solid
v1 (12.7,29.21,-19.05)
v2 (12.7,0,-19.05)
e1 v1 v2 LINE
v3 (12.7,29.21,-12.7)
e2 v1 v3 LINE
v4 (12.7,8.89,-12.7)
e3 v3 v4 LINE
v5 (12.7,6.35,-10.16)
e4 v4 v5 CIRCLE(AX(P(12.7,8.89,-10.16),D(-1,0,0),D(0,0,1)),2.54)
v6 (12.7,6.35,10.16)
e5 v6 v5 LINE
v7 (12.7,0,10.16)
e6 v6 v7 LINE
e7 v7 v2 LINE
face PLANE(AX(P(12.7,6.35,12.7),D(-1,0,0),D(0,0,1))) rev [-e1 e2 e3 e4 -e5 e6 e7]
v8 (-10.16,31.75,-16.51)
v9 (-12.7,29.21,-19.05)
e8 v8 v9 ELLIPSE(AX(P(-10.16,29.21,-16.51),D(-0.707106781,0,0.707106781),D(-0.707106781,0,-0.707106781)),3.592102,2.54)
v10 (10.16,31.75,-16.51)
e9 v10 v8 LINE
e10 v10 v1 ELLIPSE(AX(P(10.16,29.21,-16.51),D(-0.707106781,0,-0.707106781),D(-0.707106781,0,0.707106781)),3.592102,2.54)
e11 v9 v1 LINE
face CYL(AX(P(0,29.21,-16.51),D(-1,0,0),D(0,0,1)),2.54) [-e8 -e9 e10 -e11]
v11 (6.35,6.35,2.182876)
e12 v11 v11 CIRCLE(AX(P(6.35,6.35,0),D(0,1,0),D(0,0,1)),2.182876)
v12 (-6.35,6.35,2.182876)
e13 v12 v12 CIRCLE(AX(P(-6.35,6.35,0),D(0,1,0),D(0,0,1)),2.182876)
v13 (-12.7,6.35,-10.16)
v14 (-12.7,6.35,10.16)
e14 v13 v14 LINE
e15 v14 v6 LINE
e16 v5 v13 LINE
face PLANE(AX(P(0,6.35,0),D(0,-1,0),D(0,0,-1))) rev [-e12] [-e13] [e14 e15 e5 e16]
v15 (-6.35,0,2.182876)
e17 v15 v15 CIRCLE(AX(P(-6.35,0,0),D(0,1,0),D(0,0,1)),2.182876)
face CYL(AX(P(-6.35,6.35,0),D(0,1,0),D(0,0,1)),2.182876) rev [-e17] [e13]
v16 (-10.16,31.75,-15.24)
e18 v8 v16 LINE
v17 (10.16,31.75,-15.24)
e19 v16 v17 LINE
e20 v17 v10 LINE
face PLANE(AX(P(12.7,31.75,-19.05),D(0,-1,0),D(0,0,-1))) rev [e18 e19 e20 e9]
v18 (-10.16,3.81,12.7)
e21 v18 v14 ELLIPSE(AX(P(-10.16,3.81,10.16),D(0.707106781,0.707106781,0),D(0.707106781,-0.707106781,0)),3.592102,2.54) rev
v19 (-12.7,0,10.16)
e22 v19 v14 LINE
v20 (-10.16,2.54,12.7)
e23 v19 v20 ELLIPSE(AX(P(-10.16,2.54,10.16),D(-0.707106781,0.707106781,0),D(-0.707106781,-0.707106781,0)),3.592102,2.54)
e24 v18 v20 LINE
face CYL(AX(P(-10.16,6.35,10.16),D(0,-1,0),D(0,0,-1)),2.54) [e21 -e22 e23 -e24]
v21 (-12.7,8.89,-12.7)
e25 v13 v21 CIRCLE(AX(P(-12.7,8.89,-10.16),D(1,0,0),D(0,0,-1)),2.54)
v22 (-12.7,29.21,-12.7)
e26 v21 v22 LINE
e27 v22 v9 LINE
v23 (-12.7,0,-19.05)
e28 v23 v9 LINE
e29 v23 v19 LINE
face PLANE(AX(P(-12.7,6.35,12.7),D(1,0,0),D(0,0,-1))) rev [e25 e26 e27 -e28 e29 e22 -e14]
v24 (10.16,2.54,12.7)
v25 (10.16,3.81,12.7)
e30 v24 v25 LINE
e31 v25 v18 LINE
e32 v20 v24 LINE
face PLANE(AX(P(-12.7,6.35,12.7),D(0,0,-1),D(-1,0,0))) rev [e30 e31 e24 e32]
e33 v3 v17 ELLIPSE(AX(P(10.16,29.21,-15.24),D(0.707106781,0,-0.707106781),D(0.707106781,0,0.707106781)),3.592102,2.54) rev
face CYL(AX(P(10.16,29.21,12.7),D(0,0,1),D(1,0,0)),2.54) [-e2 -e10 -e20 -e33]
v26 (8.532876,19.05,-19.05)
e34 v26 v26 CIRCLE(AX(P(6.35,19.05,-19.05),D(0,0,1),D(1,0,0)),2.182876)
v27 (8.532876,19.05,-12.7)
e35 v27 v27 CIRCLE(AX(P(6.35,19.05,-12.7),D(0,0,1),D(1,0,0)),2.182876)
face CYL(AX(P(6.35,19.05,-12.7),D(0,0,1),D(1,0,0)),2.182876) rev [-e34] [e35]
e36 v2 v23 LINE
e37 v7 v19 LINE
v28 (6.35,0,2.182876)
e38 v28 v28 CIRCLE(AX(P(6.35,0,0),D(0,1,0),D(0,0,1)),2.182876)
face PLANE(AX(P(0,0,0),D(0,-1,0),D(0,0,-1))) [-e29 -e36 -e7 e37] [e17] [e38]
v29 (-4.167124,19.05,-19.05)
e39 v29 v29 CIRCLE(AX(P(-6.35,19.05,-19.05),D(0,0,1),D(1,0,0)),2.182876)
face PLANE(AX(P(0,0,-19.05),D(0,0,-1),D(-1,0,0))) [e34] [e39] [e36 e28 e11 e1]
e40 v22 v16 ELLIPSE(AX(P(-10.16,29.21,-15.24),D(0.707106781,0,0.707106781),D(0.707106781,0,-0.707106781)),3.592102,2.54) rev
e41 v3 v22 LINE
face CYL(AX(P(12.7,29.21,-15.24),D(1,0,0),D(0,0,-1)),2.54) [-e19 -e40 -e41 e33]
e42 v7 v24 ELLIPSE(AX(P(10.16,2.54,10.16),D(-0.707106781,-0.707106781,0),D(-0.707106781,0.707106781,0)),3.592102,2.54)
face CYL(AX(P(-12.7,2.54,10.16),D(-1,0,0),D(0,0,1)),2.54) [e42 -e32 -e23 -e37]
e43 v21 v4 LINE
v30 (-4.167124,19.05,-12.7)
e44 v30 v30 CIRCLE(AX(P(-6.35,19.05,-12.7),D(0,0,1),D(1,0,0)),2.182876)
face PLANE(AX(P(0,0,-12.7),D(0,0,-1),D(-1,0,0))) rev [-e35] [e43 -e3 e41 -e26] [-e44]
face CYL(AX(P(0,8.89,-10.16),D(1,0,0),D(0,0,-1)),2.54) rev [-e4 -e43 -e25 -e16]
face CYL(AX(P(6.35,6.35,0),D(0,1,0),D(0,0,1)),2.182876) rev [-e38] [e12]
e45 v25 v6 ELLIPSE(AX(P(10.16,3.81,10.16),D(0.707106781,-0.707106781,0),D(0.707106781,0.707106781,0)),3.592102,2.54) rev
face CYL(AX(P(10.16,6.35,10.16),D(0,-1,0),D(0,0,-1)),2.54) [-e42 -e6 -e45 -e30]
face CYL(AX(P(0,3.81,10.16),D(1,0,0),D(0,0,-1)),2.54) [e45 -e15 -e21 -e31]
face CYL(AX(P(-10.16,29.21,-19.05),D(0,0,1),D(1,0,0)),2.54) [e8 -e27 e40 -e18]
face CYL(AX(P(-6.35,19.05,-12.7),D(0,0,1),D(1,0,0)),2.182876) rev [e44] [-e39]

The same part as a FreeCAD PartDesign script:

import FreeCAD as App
import Part
import Sketcher
Q = App.Units.Quantity


def edges_at(feature, points):
    """Names of the edges that pass closest to the given points."""
    edges = feature.Shape.Edges
    near = lambda p: min(range(len(edges)), key=lambda i: edges[i].distToShape(Part.Vertex(*p))[0])
    return sorted({f"Edge{near(p) + 1}" for p in points})

doc = App.newDocument("Part")
params = doc.addObject("Spreadsheet::Sheet", "Params")
for row, (alias, value) in enumerate([
    ("sketch1_width", "1 in"),
    ("pad1_length", "0.25 in"),
    ("sketch2_width", "1 in"),
    ("sketch2_height", "1.25 in"),
    ("pad2_length", "0.25 in"),
    ("fillet_radius", "0.1 in"),
    ("hole_diameter", "4.365752 mm"),
    ("hole2_diameter", "4.365752 mm"),
], start=1):
    params.set(f"A{row}", alias)
    params.set(f"B{row}", "=" + value)
    params.setAlias(f"B{row}", alias)

body = doc.addObject("PartDesign::Body", "Body")

sketch1 = doc.addObject("Sketcher::SketchObject", "Sketch")
body.addObject(sketch1)
sketch1.AttachmentSupport = (doc.XZ_Plane, [""])
sketch1.MapMode = "FlatFace"
sketch1.addGeometry(Part.LineSegment(App.Vector(-12.7, -12.7, 0), App.Vector(-12.7, 12.7, 0)), False)
sketch1.addGeometry(Part.LineSegment(App.Vector(-12.7, 12.7, 0), App.Vector(12.7, 12.7, 0)), False)
sketch1.addGeometry(Part.LineSegment(App.Vector(12.7, 12.7, 0), App.Vector(12.7, -12.7, 0)), False)
sketch1.addGeometry(Part.LineSegment(App.Vector(12.7, -12.7, 0), App.Vector(-12.7, -12.7, 0)), False)
sketch1.addConstraint(Sketcher.Constraint("Coincident", 0, 2, 1, 1))
sketch1.addConstraint(Sketcher.Constraint("Coincident", 1, 2, 2, 1))
sketch1.addConstraint(Sketcher.Constraint("Coincident", 2, 2, 3, 1))
sketch1.addConstraint(Sketcher.Constraint("Coincident", 3, 2, 0, 1))
sketch1.addConstraint(Sketcher.Constraint("Vertical", 0))
sketch1.addConstraint(Sketcher.Constraint("Horizontal", 1))
sketch1.addConstraint(Sketcher.Constraint("Vertical", 2))
sketch1.addConstraint(Sketcher.Constraint("Horizontal", 3))
sketch1.addConstraint(Sketcher.Constraint("Symmetric", 0, 2, 2, 2, -1, 1))
sketch1.addConstraint(Sketcher.Constraint("Equal", 3, 0))
sketch1.addConstraint(Sketcher.Constraint("DistanceX", 1, 1, 1, 2, Q("1 in")))
sketch1.setExpression("Constraints[10]", "Params.sketch1_width")
pad1 = doc.addObject("PartDesign::Pad", "Pad")
body.addObject(pad1)
pad1.Profile = sketch1
pad1.setExpression("Length", "Params.pad1_length")
pad1.Reversed = True

sketch2 = doc.addObject("Sketcher::SketchObject", "Sketch001")
body.addObject(sketch2)
sketch2.AttachmentSupport = (doc.XY_Plane, [""])
sketch2.MapMode = "FlatFace"
sketch2.AttachmentOffset = App.Placement(App.Vector(0, 0, -0.5 * 25.4), App.Rotation())
sketch2.addGeometry(Part.LineSegment(App.Vector(12.7, 31.75, 0), App.Vector(12.7, 0, 0)), False)
sketch2.addGeometry(Part.LineSegment(App.Vector(12.7, 0, 0), App.Vector(-12.7, 0, 0)), False)
sketch2.addGeometry(Part.LineSegment(App.Vector(-12.7, 0, 0), App.Vector(-12.7, 31.75, 0)), False)
sketch2.addGeometry(Part.LineSegment(App.Vector(-12.7, 31.75, 0), App.Vector(12.7, 31.75, 0)), False)
sketch2.addConstraint(Sketcher.Constraint("Coincident", 0, 2, 1, 1))
sketch2.addConstraint(Sketcher.Constraint("Coincident", 1, 2, 2, 1))
sketch2.addConstraint(Sketcher.Constraint("Coincident", 2, 2, 3, 1))
sketch2.addConstraint(Sketcher.Constraint("Coincident", 3, 2, 0, 1))
sketch2.addConstraint(Sketcher.Constraint("Vertical", 0))
sketch2.addConstraint(Sketcher.Constraint("Horizontal", 1))
sketch2.addConstraint(Sketcher.Constraint("Vertical", 2))
sketch2.addConstraint(Sketcher.Constraint("Horizontal", 3))
sketch2.addConstraint(Sketcher.Constraint("Symmetric", 0, 2, 1, 2, -1, 1))
sketch2.addConstraint(Sketcher.Constraint("DistanceX", 1, 2, 1, 1, Q("1 in")))
sketch2.addConstraint(Sketcher.Constraint("DistanceY", 0, 2, 0, 1, Q("1.25 in")))
sketch2.setExpression("Constraints[9]", "Params.sketch2_width")
sketch2.setExpression("Constraints[10]", "Params.sketch2_height")
pad2 = doc.addObject("PartDesign::Pad", "Pad001")
body.addObject(pad2)
pad2.Profile = sketch2
pad2.setExpression("Length", "Params.pad2_length")
pad2.Reversed = True
doc.recompute()

fillet = doc.addObject("PartDesign::Fillet", "Fillet")
body.addObject(fillet)
fillet.Base = (pad2, edges_at(pad2, [
    (0, 31.75, -12.7),
    (-12.7, 31.75, -15.875),
    (12.7, 31.75, -15.875),
    (0, 6.35, 12.7),
    (0, 31.75, -19.05),
    (0, 0, 12.7),
    (12.7, 3.175, 12.7),
    (-12.7, 3.175, 12.7),
    (0, 6.35, -12.7),
]))
fillet.setExpression("Radius", "Params.fillet_radius")

sketch3 = doc.addObject("Sketcher::SketchObject", "Sketch002")
body.addObject(sketch3)
sketch3.AttachmentSupport = (doc.XZ_Plane, [""])
sketch3.MapMode = "FlatFace"
sketch3.AttachmentOffset = App.Placement(App.Vector(0, 0, -0.25 * 25.4), App.Rotation())
sketch3.addGeometry(Part.Circle(App.Vector(-6.35, 0, 0), App.Vector(0, 0, 1), 2.182876), False)
sketch3.addGeometry(Part.Circle(App.Vector(6.35, 0, 0), App.Vector(0, 0, 1), 2.182876), False)
sketch3.addConstraint(Sketcher.Constraint("Equal", 0, 1))
sketch3.addConstraint(Sketcher.Constraint("Symmetric", 0, 3, 1, 3, -1, 1))
sketch3.addConstraint(Sketcher.Constraint("PointOnObject", 0, 3, -1))
sketch3.addConstraint(Sketcher.Constraint("DistanceX", 0, 3, 1, 3, Q("0.5 in")))
sketch3.addConstraint(Sketcher.Constraint("Diameter", 0, 4.365752))
doc.recompute()
hole = doc.addObject("PartDesign::Hole", "Hole")
body.addObject(hole)
hole.Profile = sketch3
hole.ThreadType = "None"
hole.setExpression("Diameter", "Params.hole_diameter")
hole.DepthType = "ThroughAll"
hole.Reversed = True

sketch4 = doc.addObject("Sketcher::SketchObject", "Sketch003")
body.addObject(sketch4)
sketch4.AttachmentSupport = (doc.XY_Plane, [""])
sketch4.MapMode = "FlatFace"
sketch4.AttachmentOffset = App.Placement(App.Vector(0, 0, -0.5 * 25.4), App.Rotation())
sketch4.addGeometry(Part.Circle(App.Vector(6.35, 19.05, 0), App.Vector(0, 0, 1), 2.182876), False)
sketch4.addGeometry(Part.Circle(App.Vector(-6.35, 19.05, 0), App.Vector(0, 0, 1), 2.182876), False)
sketch4.addConstraint(Sketcher.Constraint("Equal", 0, 1))
sketch4.addConstraint(Sketcher.Constraint("Symmetric", 0, 3, 1, 3, -2))
sketch4.addConstraint(Sketcher.Constraint("DistanceX", 1, 3, 0, 3, Q("0.5 in")))
sketch4.addConstraint(Sketcher.Constraint("DistanceY", -1, 1, 0, 3, Q("0.75 in")))
sketch4.addConstraint(Sketcher.Constraint("Diameter", 0, 4.365752))
doc.recompute()
hole2 = doc.addObject("PartDesign::Hole", "Hole001")
body.addObject(hole2)
hole2.Profile = sketch4
hole2.ThreadType = "None"
hole2.setExpression("Diameter", "Params.hole2_diameter")
hole2.DepthType = "ThroughAll"

doc.recompute()
